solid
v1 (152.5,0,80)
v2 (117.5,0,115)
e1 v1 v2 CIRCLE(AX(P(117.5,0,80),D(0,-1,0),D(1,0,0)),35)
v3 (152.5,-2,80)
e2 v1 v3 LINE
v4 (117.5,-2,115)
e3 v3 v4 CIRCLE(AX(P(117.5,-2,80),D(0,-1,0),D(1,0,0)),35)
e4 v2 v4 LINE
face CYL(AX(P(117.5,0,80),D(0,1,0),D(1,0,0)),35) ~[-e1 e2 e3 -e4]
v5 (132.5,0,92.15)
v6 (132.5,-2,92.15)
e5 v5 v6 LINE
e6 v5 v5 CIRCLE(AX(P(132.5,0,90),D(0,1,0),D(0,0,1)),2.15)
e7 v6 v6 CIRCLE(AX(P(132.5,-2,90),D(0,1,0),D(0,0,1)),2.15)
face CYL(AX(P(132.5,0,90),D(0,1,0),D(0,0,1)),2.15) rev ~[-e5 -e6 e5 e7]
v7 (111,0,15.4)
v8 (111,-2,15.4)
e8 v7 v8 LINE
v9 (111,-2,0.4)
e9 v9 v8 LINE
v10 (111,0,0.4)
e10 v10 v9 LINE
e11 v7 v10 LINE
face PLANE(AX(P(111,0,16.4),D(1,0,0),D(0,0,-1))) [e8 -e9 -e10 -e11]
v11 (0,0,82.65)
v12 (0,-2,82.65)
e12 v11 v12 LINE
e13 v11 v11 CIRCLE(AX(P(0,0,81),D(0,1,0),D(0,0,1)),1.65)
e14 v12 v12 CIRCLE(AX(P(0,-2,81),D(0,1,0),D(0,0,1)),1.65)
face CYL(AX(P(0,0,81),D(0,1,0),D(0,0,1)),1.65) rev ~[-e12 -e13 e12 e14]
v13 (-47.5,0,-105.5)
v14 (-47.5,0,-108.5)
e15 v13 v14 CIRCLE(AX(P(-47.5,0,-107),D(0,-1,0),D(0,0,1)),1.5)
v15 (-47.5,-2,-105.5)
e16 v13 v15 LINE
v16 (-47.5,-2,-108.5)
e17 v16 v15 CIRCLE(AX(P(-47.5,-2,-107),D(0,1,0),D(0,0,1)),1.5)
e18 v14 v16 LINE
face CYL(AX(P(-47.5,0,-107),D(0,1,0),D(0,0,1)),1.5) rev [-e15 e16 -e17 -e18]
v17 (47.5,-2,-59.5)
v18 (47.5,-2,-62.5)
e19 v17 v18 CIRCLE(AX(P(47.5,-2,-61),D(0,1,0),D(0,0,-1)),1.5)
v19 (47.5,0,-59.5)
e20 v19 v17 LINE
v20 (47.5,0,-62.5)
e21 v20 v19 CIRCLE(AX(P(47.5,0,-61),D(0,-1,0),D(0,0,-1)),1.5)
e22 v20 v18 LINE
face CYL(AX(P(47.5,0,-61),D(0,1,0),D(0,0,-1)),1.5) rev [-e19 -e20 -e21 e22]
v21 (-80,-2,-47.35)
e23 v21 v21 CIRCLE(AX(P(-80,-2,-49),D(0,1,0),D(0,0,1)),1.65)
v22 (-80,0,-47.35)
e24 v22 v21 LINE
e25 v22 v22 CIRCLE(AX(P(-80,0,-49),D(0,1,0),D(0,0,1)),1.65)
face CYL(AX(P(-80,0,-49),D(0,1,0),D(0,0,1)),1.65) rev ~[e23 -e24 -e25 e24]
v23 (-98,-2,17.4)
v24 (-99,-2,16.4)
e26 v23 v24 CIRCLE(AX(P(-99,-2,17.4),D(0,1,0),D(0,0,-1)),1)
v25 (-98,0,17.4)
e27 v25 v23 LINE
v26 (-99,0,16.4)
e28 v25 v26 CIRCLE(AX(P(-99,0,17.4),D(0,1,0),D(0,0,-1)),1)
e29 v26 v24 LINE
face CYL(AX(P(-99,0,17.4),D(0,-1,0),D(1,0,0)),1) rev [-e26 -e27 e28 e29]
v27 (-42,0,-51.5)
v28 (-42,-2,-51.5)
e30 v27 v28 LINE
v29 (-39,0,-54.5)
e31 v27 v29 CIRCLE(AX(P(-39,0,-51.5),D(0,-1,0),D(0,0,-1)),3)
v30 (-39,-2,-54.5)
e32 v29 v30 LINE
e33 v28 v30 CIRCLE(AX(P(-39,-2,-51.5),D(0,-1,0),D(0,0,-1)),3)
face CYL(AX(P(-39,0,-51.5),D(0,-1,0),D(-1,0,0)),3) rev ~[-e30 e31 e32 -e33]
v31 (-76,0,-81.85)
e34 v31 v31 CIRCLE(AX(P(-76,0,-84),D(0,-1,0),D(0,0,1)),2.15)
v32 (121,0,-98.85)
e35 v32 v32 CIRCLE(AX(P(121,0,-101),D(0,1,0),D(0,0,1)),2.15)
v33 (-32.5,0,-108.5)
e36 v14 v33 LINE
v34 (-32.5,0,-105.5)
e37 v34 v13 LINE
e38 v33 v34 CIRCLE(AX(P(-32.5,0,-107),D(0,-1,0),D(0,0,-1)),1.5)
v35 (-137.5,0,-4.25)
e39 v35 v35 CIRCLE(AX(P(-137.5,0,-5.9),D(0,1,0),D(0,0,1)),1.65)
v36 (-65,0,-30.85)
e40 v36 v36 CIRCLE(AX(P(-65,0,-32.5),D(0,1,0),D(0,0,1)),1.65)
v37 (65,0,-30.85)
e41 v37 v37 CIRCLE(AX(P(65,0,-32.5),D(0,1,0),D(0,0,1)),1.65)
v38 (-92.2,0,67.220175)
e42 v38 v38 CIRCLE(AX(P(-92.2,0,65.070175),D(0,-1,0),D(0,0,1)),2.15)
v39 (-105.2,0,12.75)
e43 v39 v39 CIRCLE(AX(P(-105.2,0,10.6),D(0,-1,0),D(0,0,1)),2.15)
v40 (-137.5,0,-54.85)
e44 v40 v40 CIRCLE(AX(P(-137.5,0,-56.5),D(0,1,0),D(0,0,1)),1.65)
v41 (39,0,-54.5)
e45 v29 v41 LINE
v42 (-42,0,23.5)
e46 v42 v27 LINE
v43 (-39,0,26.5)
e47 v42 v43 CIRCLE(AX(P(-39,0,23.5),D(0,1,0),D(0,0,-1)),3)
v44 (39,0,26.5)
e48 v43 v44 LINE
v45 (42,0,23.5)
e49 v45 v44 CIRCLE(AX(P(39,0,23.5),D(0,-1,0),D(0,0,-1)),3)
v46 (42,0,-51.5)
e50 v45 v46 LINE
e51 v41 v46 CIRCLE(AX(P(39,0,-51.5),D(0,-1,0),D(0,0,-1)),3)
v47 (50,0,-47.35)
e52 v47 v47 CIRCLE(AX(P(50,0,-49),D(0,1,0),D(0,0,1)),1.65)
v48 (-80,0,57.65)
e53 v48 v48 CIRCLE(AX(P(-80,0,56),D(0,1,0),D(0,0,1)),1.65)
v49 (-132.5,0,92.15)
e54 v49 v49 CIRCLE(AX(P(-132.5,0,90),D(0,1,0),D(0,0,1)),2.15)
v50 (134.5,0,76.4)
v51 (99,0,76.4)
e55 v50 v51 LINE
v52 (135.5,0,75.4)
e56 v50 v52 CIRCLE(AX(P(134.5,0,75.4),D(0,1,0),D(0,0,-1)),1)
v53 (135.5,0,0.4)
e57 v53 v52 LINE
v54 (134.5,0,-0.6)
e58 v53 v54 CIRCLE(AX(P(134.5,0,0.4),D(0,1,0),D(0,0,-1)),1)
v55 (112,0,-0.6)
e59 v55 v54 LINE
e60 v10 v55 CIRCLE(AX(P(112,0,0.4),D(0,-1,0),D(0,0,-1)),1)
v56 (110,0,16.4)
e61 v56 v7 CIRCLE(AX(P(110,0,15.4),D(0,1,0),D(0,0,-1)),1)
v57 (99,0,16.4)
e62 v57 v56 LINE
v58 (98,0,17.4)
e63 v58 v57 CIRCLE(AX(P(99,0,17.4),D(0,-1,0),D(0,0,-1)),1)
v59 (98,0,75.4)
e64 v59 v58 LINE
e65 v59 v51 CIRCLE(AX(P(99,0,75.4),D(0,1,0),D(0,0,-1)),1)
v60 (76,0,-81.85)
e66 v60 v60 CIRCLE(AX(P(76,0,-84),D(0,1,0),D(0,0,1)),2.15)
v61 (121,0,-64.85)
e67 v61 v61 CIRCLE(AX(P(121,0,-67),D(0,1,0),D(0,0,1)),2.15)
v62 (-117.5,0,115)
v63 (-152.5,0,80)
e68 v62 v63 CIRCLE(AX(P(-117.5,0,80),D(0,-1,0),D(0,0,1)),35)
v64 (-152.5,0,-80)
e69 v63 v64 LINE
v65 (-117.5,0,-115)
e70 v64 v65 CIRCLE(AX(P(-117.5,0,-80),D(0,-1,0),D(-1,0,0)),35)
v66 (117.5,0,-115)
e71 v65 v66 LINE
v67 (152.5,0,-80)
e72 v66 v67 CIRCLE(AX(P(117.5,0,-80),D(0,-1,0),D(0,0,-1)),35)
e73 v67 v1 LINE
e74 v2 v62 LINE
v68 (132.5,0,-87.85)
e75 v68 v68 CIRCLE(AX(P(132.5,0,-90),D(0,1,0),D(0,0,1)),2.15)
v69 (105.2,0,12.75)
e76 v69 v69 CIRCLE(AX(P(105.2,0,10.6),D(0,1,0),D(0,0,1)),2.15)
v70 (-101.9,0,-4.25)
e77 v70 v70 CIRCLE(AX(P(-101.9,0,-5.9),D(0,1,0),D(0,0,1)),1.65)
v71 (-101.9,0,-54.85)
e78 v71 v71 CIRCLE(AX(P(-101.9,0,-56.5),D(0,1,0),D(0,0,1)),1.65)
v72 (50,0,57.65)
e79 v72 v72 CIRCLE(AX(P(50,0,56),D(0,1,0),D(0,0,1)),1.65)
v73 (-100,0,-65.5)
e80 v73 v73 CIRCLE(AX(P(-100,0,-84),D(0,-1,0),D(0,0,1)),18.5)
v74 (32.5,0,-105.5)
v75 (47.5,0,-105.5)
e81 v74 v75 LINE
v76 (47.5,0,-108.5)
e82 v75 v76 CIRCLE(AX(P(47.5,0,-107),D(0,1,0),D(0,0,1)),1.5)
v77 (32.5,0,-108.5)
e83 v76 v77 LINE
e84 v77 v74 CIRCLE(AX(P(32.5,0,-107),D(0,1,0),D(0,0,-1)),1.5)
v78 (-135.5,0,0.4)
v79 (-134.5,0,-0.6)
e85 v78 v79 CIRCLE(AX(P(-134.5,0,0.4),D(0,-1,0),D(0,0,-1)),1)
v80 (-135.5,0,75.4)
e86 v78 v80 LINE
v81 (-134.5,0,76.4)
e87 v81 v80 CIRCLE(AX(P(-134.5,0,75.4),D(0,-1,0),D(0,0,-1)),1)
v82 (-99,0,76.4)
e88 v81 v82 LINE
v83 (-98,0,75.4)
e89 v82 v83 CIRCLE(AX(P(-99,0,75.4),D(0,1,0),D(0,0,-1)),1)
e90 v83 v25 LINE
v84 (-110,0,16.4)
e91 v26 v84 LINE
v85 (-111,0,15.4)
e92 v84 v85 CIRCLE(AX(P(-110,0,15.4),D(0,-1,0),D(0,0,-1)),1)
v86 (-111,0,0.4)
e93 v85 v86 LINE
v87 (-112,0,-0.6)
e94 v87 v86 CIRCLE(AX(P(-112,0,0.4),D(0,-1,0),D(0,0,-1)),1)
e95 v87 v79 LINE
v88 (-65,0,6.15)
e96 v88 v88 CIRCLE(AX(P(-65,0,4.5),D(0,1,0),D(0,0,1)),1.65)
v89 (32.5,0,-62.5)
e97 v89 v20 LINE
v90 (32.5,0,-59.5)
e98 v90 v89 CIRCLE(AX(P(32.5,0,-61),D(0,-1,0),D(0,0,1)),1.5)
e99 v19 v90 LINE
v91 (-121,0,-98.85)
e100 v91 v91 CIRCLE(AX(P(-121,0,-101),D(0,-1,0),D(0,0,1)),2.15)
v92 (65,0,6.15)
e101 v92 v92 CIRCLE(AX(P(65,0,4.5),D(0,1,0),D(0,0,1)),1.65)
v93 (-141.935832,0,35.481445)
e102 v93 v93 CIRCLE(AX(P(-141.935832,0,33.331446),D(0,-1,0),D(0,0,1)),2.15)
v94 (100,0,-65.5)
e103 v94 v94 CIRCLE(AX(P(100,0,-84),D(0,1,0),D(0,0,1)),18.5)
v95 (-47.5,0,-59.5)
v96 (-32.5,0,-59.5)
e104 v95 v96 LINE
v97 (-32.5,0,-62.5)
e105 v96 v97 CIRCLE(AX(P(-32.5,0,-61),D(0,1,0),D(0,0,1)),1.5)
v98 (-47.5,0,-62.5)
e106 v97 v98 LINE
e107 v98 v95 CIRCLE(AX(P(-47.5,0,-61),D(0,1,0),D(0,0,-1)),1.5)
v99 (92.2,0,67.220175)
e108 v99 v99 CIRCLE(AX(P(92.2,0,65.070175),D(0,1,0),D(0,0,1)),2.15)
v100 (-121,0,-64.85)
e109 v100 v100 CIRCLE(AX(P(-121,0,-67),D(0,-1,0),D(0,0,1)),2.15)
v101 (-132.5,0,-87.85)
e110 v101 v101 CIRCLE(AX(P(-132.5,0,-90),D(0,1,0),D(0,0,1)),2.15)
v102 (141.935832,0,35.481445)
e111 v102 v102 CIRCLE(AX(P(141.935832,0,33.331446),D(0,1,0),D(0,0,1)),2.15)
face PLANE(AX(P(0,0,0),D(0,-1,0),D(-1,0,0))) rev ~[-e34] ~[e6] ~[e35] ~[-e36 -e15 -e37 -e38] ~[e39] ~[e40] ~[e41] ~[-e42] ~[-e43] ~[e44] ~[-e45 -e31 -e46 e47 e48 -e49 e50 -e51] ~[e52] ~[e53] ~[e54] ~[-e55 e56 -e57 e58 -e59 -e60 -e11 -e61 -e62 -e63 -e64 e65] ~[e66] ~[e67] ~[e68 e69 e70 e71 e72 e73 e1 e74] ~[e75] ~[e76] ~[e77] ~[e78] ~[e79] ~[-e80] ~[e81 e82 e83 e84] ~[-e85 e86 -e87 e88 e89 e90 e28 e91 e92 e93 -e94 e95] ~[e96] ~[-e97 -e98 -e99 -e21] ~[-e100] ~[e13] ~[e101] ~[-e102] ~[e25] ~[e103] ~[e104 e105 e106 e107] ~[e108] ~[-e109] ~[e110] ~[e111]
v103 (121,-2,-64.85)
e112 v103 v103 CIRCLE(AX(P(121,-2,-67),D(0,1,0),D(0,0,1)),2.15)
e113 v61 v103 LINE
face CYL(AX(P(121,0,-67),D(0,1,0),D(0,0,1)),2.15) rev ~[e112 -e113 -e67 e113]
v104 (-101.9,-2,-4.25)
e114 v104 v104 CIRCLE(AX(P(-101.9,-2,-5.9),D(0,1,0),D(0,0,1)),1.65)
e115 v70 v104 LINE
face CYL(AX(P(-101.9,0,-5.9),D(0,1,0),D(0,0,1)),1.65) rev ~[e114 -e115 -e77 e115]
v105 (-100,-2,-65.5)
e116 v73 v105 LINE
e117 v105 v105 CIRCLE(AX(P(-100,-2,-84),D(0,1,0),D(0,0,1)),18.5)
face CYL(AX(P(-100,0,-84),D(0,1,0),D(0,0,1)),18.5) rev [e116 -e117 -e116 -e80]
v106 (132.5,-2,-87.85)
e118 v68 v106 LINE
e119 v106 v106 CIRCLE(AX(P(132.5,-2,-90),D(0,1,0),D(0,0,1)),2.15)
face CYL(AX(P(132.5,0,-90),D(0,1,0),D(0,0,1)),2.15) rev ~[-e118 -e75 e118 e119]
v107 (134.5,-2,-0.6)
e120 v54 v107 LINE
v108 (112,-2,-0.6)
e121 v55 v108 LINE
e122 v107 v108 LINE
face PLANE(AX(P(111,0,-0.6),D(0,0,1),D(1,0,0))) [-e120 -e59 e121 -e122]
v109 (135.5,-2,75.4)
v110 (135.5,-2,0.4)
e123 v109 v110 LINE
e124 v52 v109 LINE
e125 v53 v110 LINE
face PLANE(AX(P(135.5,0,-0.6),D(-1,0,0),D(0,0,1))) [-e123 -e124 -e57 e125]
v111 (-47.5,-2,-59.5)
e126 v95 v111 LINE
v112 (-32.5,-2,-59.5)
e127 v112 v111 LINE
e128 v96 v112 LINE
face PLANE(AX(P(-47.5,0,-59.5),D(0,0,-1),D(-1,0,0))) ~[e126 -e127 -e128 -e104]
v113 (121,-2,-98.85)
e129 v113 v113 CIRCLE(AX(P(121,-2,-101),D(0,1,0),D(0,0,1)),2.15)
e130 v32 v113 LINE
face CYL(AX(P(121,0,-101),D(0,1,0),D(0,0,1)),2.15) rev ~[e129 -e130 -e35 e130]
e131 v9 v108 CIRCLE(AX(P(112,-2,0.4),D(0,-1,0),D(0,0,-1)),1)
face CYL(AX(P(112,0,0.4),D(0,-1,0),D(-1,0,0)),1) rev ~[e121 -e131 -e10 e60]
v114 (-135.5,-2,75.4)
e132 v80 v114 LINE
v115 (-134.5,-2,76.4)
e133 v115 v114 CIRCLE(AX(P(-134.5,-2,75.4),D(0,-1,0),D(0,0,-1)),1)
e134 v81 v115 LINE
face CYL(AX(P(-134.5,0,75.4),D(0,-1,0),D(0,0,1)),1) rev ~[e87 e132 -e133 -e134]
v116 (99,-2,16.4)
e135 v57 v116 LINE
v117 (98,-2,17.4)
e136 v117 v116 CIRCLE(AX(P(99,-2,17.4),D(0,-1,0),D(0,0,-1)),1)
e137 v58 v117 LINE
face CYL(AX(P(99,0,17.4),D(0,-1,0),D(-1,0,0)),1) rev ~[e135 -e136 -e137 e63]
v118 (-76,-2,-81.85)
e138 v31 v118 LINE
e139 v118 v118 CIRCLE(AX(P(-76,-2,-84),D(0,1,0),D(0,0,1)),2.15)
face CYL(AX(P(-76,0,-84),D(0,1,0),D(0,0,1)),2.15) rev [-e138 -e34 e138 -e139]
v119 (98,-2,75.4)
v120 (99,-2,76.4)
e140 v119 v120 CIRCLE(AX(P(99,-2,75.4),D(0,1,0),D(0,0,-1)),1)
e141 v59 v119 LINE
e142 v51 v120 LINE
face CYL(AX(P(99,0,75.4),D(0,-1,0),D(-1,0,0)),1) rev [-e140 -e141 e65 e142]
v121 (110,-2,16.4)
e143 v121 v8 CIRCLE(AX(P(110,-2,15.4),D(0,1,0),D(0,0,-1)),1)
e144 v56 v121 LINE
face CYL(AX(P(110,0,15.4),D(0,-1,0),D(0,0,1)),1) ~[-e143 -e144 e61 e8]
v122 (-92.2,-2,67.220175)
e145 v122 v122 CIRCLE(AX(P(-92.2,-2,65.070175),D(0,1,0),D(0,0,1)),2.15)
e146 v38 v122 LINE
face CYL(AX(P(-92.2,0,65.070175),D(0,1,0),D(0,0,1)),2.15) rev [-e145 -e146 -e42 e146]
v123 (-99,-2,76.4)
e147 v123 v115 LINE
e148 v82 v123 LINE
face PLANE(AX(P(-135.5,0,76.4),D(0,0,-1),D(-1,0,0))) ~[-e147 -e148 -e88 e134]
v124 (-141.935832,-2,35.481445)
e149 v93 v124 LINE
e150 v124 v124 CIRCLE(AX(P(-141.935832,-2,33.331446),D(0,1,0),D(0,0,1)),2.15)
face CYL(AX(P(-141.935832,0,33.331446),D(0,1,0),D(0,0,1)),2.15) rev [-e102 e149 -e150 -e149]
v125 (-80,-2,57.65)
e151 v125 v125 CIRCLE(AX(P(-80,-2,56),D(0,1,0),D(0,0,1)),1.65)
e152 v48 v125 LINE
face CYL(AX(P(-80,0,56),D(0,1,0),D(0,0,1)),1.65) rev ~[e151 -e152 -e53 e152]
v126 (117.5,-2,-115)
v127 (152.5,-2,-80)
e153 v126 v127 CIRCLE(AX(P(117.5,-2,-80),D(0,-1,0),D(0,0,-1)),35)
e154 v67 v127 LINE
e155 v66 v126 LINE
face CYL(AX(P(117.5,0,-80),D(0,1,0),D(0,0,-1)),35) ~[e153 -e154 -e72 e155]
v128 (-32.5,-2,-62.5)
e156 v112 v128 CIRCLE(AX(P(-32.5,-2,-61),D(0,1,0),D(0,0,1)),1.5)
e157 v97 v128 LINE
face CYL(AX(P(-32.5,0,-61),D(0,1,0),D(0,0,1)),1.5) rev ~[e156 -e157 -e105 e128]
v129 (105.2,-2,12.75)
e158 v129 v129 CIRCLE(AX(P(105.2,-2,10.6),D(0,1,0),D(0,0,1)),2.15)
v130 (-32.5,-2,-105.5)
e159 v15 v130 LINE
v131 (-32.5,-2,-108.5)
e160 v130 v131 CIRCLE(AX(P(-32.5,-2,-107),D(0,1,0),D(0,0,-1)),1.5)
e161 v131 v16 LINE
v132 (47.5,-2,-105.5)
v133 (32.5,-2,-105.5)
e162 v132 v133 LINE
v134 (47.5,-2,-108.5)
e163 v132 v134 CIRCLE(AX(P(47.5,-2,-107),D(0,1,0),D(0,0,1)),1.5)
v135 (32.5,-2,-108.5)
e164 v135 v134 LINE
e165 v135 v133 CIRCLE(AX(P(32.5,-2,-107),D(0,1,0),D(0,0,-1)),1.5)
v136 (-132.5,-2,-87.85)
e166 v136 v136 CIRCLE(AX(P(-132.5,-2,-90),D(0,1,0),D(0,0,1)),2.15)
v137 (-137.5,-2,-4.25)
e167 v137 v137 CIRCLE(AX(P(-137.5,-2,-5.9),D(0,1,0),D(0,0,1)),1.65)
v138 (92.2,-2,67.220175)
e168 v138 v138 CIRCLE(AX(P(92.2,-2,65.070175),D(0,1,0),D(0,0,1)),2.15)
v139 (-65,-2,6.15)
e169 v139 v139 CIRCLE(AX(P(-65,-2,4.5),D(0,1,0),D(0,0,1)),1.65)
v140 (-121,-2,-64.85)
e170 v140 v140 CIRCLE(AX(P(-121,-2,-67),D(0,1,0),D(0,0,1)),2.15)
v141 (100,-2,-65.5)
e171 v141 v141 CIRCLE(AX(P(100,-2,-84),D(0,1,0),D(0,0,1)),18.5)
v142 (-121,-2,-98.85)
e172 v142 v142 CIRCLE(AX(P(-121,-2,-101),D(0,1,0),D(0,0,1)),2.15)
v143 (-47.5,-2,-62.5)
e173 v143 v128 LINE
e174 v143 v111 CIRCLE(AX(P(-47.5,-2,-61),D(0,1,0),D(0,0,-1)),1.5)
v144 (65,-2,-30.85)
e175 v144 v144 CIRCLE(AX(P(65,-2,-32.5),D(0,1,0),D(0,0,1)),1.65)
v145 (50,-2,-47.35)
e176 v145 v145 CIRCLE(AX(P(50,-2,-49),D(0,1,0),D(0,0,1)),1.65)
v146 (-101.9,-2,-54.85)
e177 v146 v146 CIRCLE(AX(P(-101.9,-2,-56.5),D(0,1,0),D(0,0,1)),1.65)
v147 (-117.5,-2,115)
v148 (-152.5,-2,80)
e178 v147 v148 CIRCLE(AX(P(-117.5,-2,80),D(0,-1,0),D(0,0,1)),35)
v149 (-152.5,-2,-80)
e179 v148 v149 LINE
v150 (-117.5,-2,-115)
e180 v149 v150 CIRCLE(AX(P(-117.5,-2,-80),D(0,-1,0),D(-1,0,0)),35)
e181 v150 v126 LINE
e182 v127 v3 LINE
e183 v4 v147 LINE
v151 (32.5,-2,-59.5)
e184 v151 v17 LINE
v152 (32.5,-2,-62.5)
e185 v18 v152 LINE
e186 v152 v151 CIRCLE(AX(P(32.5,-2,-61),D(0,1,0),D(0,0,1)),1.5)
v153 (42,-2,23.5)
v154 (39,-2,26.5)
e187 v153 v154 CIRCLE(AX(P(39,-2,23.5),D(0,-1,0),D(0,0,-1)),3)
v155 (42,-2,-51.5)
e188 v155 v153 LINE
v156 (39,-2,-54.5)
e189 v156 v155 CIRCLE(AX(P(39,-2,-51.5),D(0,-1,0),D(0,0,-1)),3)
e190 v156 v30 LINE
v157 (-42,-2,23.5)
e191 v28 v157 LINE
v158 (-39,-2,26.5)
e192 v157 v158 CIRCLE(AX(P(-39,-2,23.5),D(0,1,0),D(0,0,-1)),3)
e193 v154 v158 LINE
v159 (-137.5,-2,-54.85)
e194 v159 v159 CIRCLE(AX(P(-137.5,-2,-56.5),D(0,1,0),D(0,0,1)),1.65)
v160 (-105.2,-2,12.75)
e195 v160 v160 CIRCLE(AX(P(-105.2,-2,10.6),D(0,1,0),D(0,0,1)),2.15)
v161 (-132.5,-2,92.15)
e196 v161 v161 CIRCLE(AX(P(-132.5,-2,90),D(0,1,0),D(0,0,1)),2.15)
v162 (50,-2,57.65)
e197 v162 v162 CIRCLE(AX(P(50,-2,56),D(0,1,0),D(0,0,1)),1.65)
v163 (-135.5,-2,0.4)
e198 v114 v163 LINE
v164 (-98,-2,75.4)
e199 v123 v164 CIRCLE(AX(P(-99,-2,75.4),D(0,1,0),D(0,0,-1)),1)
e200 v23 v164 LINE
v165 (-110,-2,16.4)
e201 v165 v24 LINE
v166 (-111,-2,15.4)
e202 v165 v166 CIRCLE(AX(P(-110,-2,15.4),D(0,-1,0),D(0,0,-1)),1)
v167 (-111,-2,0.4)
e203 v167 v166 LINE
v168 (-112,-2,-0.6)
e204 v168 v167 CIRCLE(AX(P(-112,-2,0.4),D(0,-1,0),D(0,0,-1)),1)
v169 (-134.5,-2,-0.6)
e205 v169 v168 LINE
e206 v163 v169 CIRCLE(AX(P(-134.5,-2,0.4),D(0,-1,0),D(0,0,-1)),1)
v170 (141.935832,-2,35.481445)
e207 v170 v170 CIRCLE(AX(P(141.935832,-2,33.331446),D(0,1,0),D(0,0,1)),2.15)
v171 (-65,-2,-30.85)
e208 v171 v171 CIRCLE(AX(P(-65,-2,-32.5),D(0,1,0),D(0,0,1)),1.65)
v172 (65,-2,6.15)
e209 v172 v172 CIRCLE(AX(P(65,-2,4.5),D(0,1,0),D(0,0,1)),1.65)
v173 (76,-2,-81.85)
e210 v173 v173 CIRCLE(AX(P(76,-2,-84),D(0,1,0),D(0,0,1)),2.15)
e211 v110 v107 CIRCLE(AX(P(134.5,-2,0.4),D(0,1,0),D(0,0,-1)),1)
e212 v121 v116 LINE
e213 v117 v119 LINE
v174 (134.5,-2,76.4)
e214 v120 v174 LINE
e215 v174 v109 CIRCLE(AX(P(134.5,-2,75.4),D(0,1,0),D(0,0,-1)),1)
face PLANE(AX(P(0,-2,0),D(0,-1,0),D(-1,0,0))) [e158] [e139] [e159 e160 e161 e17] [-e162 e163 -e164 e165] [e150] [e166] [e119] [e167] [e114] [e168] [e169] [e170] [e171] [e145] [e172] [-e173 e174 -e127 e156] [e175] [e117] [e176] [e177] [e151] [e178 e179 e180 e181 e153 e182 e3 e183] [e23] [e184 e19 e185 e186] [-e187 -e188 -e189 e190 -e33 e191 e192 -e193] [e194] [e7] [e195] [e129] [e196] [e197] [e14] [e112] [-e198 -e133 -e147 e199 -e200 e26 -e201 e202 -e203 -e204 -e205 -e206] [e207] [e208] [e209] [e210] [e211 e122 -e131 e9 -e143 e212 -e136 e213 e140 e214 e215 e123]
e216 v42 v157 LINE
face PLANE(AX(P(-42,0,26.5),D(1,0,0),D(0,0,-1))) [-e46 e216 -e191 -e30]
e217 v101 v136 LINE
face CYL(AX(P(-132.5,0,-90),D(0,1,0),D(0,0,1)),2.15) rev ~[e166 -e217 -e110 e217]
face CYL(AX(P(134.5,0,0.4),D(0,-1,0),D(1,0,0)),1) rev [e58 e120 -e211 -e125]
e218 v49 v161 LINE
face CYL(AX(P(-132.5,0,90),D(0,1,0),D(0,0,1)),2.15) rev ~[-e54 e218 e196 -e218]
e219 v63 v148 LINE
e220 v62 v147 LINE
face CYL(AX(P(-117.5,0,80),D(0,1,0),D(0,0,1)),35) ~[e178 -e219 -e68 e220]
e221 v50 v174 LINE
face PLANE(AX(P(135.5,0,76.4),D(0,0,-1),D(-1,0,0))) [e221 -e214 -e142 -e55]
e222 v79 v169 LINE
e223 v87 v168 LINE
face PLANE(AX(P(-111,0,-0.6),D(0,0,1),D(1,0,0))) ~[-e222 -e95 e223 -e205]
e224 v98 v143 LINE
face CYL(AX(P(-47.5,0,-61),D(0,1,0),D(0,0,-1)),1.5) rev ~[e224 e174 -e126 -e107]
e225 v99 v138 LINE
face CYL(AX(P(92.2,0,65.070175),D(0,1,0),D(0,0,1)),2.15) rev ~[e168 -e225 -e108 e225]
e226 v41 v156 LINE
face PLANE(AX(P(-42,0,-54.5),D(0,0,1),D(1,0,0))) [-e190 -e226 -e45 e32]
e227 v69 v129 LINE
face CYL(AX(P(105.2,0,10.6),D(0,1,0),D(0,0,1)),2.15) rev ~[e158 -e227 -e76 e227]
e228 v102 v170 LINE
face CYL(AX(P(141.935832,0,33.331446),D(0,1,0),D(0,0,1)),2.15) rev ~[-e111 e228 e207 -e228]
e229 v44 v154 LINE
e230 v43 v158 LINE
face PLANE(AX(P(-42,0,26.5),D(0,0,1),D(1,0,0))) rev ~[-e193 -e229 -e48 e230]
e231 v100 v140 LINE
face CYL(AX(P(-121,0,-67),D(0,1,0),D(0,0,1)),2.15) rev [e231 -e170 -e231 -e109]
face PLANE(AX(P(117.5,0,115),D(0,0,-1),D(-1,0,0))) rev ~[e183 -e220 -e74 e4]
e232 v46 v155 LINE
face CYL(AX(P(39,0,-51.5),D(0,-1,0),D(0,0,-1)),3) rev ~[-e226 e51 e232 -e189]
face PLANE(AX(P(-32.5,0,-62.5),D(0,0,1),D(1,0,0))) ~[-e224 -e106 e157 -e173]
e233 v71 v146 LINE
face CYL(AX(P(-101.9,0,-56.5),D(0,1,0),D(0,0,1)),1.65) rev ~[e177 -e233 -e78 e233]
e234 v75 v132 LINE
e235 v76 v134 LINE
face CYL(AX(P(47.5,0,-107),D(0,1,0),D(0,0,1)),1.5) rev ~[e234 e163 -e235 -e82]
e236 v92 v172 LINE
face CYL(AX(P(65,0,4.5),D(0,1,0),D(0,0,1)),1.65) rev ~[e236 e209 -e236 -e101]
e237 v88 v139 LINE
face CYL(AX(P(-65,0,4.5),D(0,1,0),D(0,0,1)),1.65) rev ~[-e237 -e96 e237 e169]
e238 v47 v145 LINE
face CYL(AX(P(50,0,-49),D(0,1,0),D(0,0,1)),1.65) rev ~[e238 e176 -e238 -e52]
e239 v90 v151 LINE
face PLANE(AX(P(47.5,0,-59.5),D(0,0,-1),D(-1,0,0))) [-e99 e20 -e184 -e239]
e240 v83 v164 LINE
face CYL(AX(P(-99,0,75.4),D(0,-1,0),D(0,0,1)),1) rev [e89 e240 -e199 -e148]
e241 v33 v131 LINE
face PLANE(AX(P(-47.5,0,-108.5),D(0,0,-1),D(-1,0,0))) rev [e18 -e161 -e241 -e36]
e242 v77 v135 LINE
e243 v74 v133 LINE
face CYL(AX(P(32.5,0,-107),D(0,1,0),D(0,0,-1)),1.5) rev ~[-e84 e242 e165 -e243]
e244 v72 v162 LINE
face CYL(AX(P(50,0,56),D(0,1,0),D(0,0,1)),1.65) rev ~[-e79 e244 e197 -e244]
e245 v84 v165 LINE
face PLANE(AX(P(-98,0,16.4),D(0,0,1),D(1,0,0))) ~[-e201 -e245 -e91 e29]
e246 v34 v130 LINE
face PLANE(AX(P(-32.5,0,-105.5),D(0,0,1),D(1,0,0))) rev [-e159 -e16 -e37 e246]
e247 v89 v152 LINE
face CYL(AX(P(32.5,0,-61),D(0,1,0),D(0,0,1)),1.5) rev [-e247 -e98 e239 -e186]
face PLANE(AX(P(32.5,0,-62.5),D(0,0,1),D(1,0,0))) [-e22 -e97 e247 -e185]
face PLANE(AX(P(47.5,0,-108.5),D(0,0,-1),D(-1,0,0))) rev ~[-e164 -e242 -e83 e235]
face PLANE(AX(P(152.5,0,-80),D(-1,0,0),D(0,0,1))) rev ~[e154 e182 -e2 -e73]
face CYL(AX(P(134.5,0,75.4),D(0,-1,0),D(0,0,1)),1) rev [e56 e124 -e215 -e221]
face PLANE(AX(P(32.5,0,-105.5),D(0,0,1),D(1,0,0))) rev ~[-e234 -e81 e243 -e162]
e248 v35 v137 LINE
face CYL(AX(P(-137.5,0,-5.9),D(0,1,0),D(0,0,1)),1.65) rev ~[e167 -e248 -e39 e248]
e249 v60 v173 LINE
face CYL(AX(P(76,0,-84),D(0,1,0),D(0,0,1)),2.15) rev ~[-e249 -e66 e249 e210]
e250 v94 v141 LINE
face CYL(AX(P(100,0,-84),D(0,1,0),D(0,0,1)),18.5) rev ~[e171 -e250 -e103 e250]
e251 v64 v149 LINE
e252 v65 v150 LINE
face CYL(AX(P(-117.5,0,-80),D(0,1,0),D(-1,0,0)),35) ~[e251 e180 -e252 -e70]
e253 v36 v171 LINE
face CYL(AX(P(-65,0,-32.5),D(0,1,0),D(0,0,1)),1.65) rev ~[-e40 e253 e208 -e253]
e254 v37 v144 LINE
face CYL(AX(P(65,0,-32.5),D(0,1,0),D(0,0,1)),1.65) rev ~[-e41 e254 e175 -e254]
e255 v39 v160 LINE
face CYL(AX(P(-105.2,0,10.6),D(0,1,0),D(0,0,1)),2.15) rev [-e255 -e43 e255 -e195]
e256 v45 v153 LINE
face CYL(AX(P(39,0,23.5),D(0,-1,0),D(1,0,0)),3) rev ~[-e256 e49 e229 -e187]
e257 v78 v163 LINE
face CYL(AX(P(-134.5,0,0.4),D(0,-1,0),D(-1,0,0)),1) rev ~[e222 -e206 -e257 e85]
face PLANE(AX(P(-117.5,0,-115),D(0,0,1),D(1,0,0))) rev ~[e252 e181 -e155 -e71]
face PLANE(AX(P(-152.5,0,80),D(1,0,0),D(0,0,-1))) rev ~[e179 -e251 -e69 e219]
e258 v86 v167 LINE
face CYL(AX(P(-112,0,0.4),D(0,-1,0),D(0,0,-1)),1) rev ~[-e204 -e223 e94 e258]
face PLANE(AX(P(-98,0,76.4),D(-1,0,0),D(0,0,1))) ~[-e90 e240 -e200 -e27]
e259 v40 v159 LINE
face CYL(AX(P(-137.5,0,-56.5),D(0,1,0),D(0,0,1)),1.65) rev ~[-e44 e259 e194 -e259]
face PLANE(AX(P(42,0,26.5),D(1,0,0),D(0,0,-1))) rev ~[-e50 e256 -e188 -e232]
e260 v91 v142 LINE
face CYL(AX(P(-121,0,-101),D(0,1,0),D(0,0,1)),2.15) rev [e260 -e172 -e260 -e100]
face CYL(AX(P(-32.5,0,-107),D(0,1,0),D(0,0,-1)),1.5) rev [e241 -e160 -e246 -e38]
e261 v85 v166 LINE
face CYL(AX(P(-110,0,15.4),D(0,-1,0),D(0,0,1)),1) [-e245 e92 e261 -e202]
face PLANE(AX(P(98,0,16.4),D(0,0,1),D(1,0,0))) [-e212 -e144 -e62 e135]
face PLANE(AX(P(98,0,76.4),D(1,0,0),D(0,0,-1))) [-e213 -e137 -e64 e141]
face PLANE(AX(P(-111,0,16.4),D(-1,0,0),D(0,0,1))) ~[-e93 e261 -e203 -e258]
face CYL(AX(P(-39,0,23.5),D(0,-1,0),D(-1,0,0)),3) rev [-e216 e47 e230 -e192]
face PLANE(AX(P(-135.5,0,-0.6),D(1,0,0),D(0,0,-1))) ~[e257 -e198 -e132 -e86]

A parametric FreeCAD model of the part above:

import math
import FreeCAD as App
import Part
import Sketcher

V = App.Vector
Q = App.Units.Quantity


def edges_at(feature, points):
    """Names of the edges that pass closest to the given points."""
    edges = feature.Shape.Edges
    near = lambda p: min(range(len(edges)), key=lambda i: edges[i].distToShape(Part.Vertex(*p))[0])
    return sorted({f"Edge{near(p) + 1}" for p in points})

doc = App.newDocument("Part")
params = doc.addObject("Spreadsheet::Sheet", "Params")
for row, (alias, value) in enumerate([
    ("sketch1_radius", "35 mm"),
    ("sketch1_width", "235 mm"),
    ("sketch1_height", "160 mm"),
    ("pad1_length", "2 mm"),
    ("sketch2_width", "13 mm"),
    ("sketch2_height", "60 mm"),
    ("sketch2_height2", "77 mm"),
    ("sketch2_width2", "37.5 mm"),
    ("sketch3_diameter", "4.3 mm"),
    ("sketch4_diameter", "4.3 mm"),
    ("fillet_radius", "1 mm"),
    ("sketch5_diameter", "37 mm"),
    ("sketch5_diameter2", "4.3 mm"),
    ("pocket4_length", "10 mm"),
    ("sketch6_diameter", "3.3 mm"),
    ("sketch6_width", "84 mm"),
    ("sketch6_height", "81 mm"),
    ("fillet2_radius", "3 mm"),
    ("sketch7_diameter", "3.3 mm"),
    ("sketch8_diameter", "3.3 mm"),
    ("sketch9_radius", "1.5 mm"),
    ("sketch9_width", "15 mm"),
    ("fillet3_radius", "1 mm"),
], start=1):
    params.set(f"A{row}", alias)
    params.set(f"B{row}", "=" + value)
    params.setAlias(f"B{row}", alias)

body = doc.addObject("PartDesign::Body", "Body")

# Sketch on XZ plane
sketch1 = body.newObject("Sketcher::SketchObject", "Sketch")
sketch1.AttachmentSupport = (doc.getObject("XZ_Plane"), [""])
sketch1.MapMode = "FlatFace"
sketch1.addGeometry(Part.LineSegment(V(-118, 115, 0), V(118, 115, 0)), False)
sketch1.addGeometry(Part.ArcOfCircle(Part.Circle(V(118, 80, 0), V(0, 0, 1), 35), math.radians(0), math.radians(90)), False)
sketch1.addGeometry(Part.LineSegment(V(152, 80, 0), V(152, -80, 0)), False)
sketch1.addGeometry(Part.ArcOfCircle(Part.Circle(V(118, -80, 0), V(0, 0, 1), 35), math.radians(-90), math.radians(0)), False)
sketch1.addGeometry(Part.LineSegment(V(118, -115, 0), V(-118, -115, 0)), False)
sketch1.addGeometry(Part.ArcOfCircle(Part.Circle(V(-118, -80, 0), V(0, 0, 1), 35), math.radians(180), math.radians(270)), False)
sketch1.addGeometry(Part.LineSegment(V(-152, -80, 0), V(-152, 80, 0)), False)
sketch1.addGeometry(Part.ArcOfCircle(Part.Circle(V(-118, 80, 0), V(0, 0, 1), 35), math.radians(90), math.radians(180)), False)
sketch1.addConstraint(Sketcher.Constraint("Tangent", 0, 2, 1, 2))
sketch1.addConstraint(Sketcher.Constraint("Tangent", 1, 1, 2, 1))
sketch1.addConstraint(Sketcher.Constraint("Tangent", 2, 2, 3, 2))
sketch1.addConstraint(Sketcher.Constraint("Tangent", 3, 1, 4, 1))
sketch1.addConstraint(Sketcher.Constraint("Tangent", 4, 2, 5, 2))
sketch1.addConstraint(Sketcher.Constraint("Tangent", 5, 1, 6, 1))
sketch1.addConstraint(Sketcher.Constraint("Tangent", 6, 2, 7, 2))
sketch1.addConstraint(Sketcher.Constraint("Tangent", 7, 1, 0, 1))
sketch1.addConstraint(Sketcher.Constraint("Horizontal", 0))
sketch1.addConstraint(Sketcher.Constraint("Vertical", 2))
sketch1.addConstraint(Sketcher.Constraint("Horizontal", 4))
sketch1.addConstraint(Sketcher.Constraint("Vertical", 6))
sketch1.addConstraint(Sketcher.Constraint("Equal", 1, 3))
sketch1.addConstraint(Sketcher.Constraint("Equal", 3, 5))
sketch1.addConstraint(Sketcher.Constraint("Equal", 5, 7))
sketch1.addConstraint(Sketcher.Constraint("Symmetric", 1, 3, 5, 3, -1, 1))
sketch1.addConstraint(Sketcher.Constraint("Radius", 1, Q("35 mm")))
sketch1.addConstraint(Sketcher.Constraint("DistanceX", 0, 1, 0, 2, Q("235 mm")))
sketch1.addConstraint(Sketcher.Constraint("DistanceY", 2, 2, 2, 1, Q("160 mm")))
sketch1.setExpression("Constraints[16]", "Params.sketch1_radius")
sketch1.setExpression("Constraints[17]", "Params.sketch1_width")
sketch1.setExpression("Constraints[18]", "Params.sketch1_height")
pad1 = body.newObject("PartDesign::Pad", "Pad")
pad1.Profile = sketch1
pad1.setExpression("Length", "Params.pad1_length")

# Sketch on XZ plane
sketch2 = body.newObject("Sketcher::SketchObject", "Sketch001")
sketch2.AttachmentSupport = (doc.getObject("XZ_Plane"), [""])
sketch2.MapMode = "FlatFace"
sketch2.addGeometry(Part.LineSegment(V(98, 16, 0), V(98, 76, 0)), False)
sketch2.addGeometry(Part.LineSegment(V(98, 76, 0), V(136, 76, 0)), False)
sketch2.addGeometry(Part.LineSegment(V(136, 76, 0), V(136, -1, 0)), False)
sketch2.addGeometry(Part.LineSegment(V(136, -1, 0), V(111, -1, 0)), False)
sketch2.addGeometry(Part.LineSegment(V(111, -1, 0), V(111, 16, 0)), False)
sketch2.addGeometry(Part.LineSegment(V(111, 16, 0), V(98, 16, 0)), False)
sketch2.addConstraint(Sketcher.Constraint("Coincident", 0, 2, 1, 1))
sketch2.addConstraint(Sketcher.Constraint("Coincident", 1, 2, 2, 1))
sketch2.addConstraint(Sketcher.Constraint("Coincident", 2, 2, 3, 1))
sketch2.addConstraint(Sketcher.Constraint("Coincident", 3, 2, 4, 1))
sketch2.addConstraint(Sketcher.Constraint("Coincident", 4, 2, 5, 1))
sketch2.addConstraint(Sketcher.Constraint("Coincident", 5, 2, 0, 1))
sketch2.addConstraint(Sketcher.Constraint("Vertical", 0))
sketch2.addConstraint(Sketcher.Constraint("Horizontal", 1))
sketch2.addConstraint(Sketcher.Constraint("Vertical", 2))
sketch2.addConstraint(Sketcher.Constraint("Horizontal", 3))
sketch2.addConstraint(Sketcher.Constraint("Vertical", 4))
sketch2.addConstraint(Sketcher.Constraint("Horizontal", 5))
sketch2.addConstraint(Sketcher.Constraint("DistanceX", 5, 2, 5, 1, Q("13 mm")))
sketch2.addConstraint(Sketcher.Constraint("DistanceY", 0, 1, 0, 2, Q("60 mm")))
sketch2.addConstraint(Sketcher.Constraint("DistanceY", 2, 2, 2, 1, Q("77 mm")))
sketch2.addConstraint(Sketcher.Constraint("DistanceX", 1, 1, 1, 2, Q("37.5 mm")))
sketch2.addConstraint(Sketcher.Constraint("DistanceX", -1, 1, 0, 2, Q("98 mm")))
sketch2.addConstraint(Sketcher.Constraint("DistanceY", -1, 1, 0, 2, Q("76.4 mm")))
sketch2.setExpression("Constraints[12]", "Params.sketch2_width")
sketch2.setExpression("Constraints[13]", "Params.sketch2_height")
sketch2.setExpression("Constraints[14]", "Params.sketch2_height2")
sketch2.setExpression("Constraints[15]", "Params.sketch2_width2")
pocket1 = body.newObject("PartDesign::Pocket", "Pocket")
pocket1.Profile = sketch2
pocket1.Type = "ThroughAll"
pocket1.Reversed = True

# Sketch on XZ plane
sketch3 = body.newObject("Sketcher::SketchObject", "Sketch002")
sketch3.AttachmentSupport = (doc.getObject("XZ_Plane"), [""])
sketch3.MapMode = "FlatFace"
sketch3.addGeometry(Part.Circle(V(92.2, 65.1, 0), V(0, 0, 1), 2.1), False)
sketch3.addGeometry(Part.Circle(V(105.2, 10.6, 0), V(0, 0, 1), 2.1), False)
sketch3.addGeometry(Part.Circle(V(141.9, 33.3, 0), V(0, 0, 1), 2.1), False)
sketch3.addConstraint(Sketcher.Constraint("Equal", 0, 1))
sketch3.addConstraint(Sketcher.Constraint("Equal", 1, 2))
sketch3.addConstraint(Sketcher.Constraint("Diameter", 0, Q("4.3 mm")))
sketch3.addConstraint(Sketcher.Constraint("DistanceX", 0, 3, 1, 3, Q("13 mm")))
sketch3.addConstraint(Sketcher.Constraint("DistanceX", -1, 1, 0, 3, Q("92.2 mm")))
sketch3.addConstraint(Sketcher.Constraint("DistanceY", -1, 1, 1, 3, Q("10.6 mm")))
sketch3.addConstraint(Sketcher.Constraint("DistanceY", 2, 3, 0, 3, Q("31.73873 mm")))
sketch3.addConstraint(Sketcher.Constraint("DistanceY", -1, 1, 0, 3, Q("65.070175 mm")))
sketch3.addConstraint(Sketcher.Constraint("DistanceX", -1, 1, 2, 3, Q("141.935832 mm")))
sketch3.setExpression("Constraints[2]", "Params.sketch3_diameter")
pocket2 = body.newObject("PartDesign::Pocket", "Pocket001")
pocket2.Profile = sketch3
pocket2.Type = "ThroughAll"
pocket2.Reversed = True

# Sketch on XZ plane
sketch4 = body.newObject("Sketcher::SketchObject", "Sketch003")
sketch4.AttachmentSupport = (doc.getObject("XZ_Plane"), [""])
sketch4.MapMode = "FlatFace"
sketch4.addGeometry(Part.Circle(V(-132.5, -90, 0), V(0, 0, 1), 2.1), False)
sketch4.addGeometry(Part.Circle(V(132.5, -90, 0), V(0, 0, 1), 2.1), False)
sketch4.addGeometry(Part.Circle(V(-132.5, 90, 0), V(0, 0, 1), 2.1), False)
sketch4.addGeometry(Part.Circle(V(132.5, 90, 0), V(0, 0, 1), 2.1), False)
sketch4.addConstraint(Sketcher.Constraint("Equal", 0, 1))
sketch4.addConstraint(Sketcher.Constraint("Equal", 1, 2))
sketch4.addConstraint(Sketcher.Constraint("Equal", 2, 3))
sketch4.addConstraint(Sketcher.Constraint("Symmetric", 1, 3, 2, 3, -1, 1))
sketch4.addConstraint(Sketcher.Constraint("Symmetric", 0, 3, 3, 3, -1, 1))
sketch4.addConstraint(Sketcher.Constraint("Symmetric", 0, 3, 1, 3, -2))
sketch4.addConstraint(Sketcher.Constraint("Diameter", 0, Q("4.3 mm")))
sketch4.addConstraint(Sketcher.Constraint("DistanceY", 0, 3, -1, 1, Q("90 mm")))
sketch4.addConstraint(Sketcher.Constraint("DistanceX", 0, 3, 1, 3, Q("265 mm")))
sketch4.setExpression("Constraints[6]", "Params.sketch4_diameter")
pocket3 = body.newObject("PartDesign::Pocket", "Pocket002")
pocket3.Profile = sketch4
pocket3.Type = "ThroughAll"
pocket3.Reversed = True
doc.recompute()

fillet = body.newObject("PartDesign::Fillet", "Fillet")
fillet.Base = (pocket3, edges_at(pocket3, [
    (135.5, -1, 76.4),
    (98, -1, 76.4),
    (98, -1, 16.4),
    (111, -1, 16.4),
    (111, -1, -0.6),
    (135.5, -1, -0.6),
]))
fillet.setExpression("Radius", "Params.fillet_radius")

# Sketch on XZ plane
sketch5 = body.newObject("Sketcher::SketchObject", "Sketch004")
sketch5.AttachmentSupport = (doc.getObject("XZ_Plane"), [""])
sketch5.MapMode = "FlatFace"
sketch5.addGeometry(Part.Circle(V(100, -84, 0), V(0, 0, 1), 18.5), False)
sketch5.addGeometry(Part.Circle(V(121, -101, 0), V(0, 0, 1), 2.1), False)
sketch5.addGeometry(Part.Circle(V(121, -67, 0), V(0, 0, 1), 2.1), False)
sketch5.addGeometry(Part.Circle(V(76, -84, 0), V(0, 0, 1), 2.1), False)
sketch5.addConstraint(Sketcher.Constraint("Equal", 1, 2))
sketch5.addConstraint(Sketcher.Constraint("Equal", 2, 3))
sketch5.addConstraint(Sketcher.Constraint("Horizontal", 0, 3, 3, 3))
sketch5.addConstraint(Sketcher.Constraint("Vertical", 1, 3, 2, 3))
sketch5.addConstraint(Sketcher.Constraint("Diameter", 0, Q("37 mm")))
sketch5.addConstraint(Sketcher.Constraint("Diameter", 1, Q("4.3 mm")))
sketch5.addConstraint(Sketcher.Constraint("DistanceX", -1, 1, 0, 3, Q("100 mm")))
sketch5.addConstraint(Sketcher.Constraint("DistanceY", 0, 3, -1, 1, Q("84 mm")))
sketch5.addConstraint(Sketcher.Constraint("DistanceX", -1, 1, 1, 3, Q("121 mm")))
sketch5.addConstraint(Sketcher.Constraint("DistanceY", 1, 3, -1, 1, Q("101 mm")))
sketch5.addConstraint(Sketcher.Constraint("DistanceY", 2, 3, -1, 1, Q("67 mm")))
sketch5.addConstraint(Sketcher.Constraint("DistanceX", -1, 1, 3, 3, Q("76 mm")))
sketch5.setExpression("Constraints[4]", "Params.sketch5_diameter")
sketch5.setExpression("Constraints[5]", "Params.sketch5_diameter2")
pocket4 = body.newObject("PartDesign::Pocket", "Pocket003")
pocket4.Profile = sketch5
pocket4.setExpression("Length", "Params.pocket4_length")
pocket4.Reversed = True

# Sketch on XZ plane
sketch6 = body.newObject("Sketcher::SketchObject", "Sketch005")
sketch6.AttachmentSupport = (doc.getObject("XZ_Plane"), [""])
sketch6.MapMode = "FlatFace"
sketch6.addGeometry(Part.Circle(V(-65, -32.5, 0), V(0, 0, 1), 1.6), False)
sketch6.addGeometry(Part.Circle(V(-65, 4.5, 0), V(0, 0, 1), 1.6), False)
sketch6.addGeometry(Part.Circle(V(65, 4.5, 0), V(0, 0, 1), 1.6), False)
sketch6.addGeometry(Part.Circle(V(65, -32.5, 0), V(0, 0, 1), 1.6), False)
sketch6.addGeometry(Part.LineSegment(V(-42, -54.5, 0), V(-42, 26.5, 0)), False)
sketch6.addGeometry(Part.LineSegment(V(-42, 26.5, 0), V(42, 26.5, 0)), False)
sketch6.addGeometry(Part.LineSegment(V(42, 26.5, 0), V(42, -54.5, 0)), False)
sketch6.addGeometry(Part.LineSegment(V(42, -54.5, 0), V(-42, -54.5, 0)), False)
sketch6.addConstraint(Sketcher.Constraint("Coincident", 4, 2, 5, 1))
sketch6.addConstraint(Sketcher.Constraint("Coincident", 5, 2, 6, 1))
sketch6.addConstraint(Sketcher.Constraint("Coincident", 6, 2, 7, 1))
sketch6.addConstraint(Sketcher.Constraint("Coincident", 7, 2, 4, 1))
sketch6.addConstraint(Sketcher.Constraint("Vertical", 4))
sketch6.addConstraint(Sketcher.Constraint("Horizontal", 5))
sketch6.addConstraint(Sketcher.Constraint("Vertical", 6))
sketch6.addConstraint(Sketcher.Constraint("Horizontal", 7))
sketch6.addConstraint(Sketcher.Constraint("Equal", 0, 1))
sketch6.addConstraint(Sketcher.Constraint("Equal", 1, 2))
sketch6.addConstraint(Sketcher.Constraint("Equal", 2, 3))
sketch6.addConstraint(Sketcher.Constraint("Symmetric", 1, 3, 2, 3, -2))
sketch6.addConstraint(Sketcher.Constraint("Symmetric", 0, 3, 3, 3, -2))
sketch6.addConstraint(Sketcher.Constraint("Vertical", 0, 3, 1, 3))
sketch6.addConstraint(Sketcher.Constraint("Diameter", 0, Q("3.3 mm")))
sketch6.addConstraint(Sketcher.Constraint("DistanceX", 5, 1, 5, 2, Q("84 mm")))
sketch6.addConstraint(Sketcher.Constraint("DistanceY", 4, 1, 4, 2, Q("81 mm")))
sketch6.addConstraint(Sketcher.Constraint("DistanceX", 0, 3, -1, 1, Q("65 mm")))
sketch6.addConstraint(Sketcher.Constraint("DistanceX", 4, 2, -1, 1, Q("42 mm")))
sketch6.addConstraint(Sketcher.Constraint("DistanceY", 0, 3, 1, 3, Q("37 mm")))
sketch6.addConstraint(Sketcher.Constraint("DistanceY", 1, 3, 4, 2, Q("22 mm")))
sketch6.addConstraint(Sketcher.Constraint("DistanceY", 0, 3, -1, 1, Q("32.5 mm")))
sketch6.setExpression("Constraints[14]", "Params.sketch6_diameter")
sketch6.setExpression("Constraints[15]", "Params.sketch6_width")
sketch6.setExpression("Constraints[16]", "Params.sketch6_height")
pocket5 = body.newObject("PartDesign::Pocket", "Pocket004")
pocket5.Profile = sketch6
pocket5.Type = "ThroughAll"
pocket5.Reversed = True
doc.recompute()

fillet2 = body.newObject("PartDesign::Fillet", "Fillet001")
fillet2.Base = (pocket5, edges_at(pocket5, [
    (42, -1, -54.5),
    (42, -1, 26.5),
    (-42, -1, 26.5),
    (-42, -1, -54.5),
]))
fillet2.setExpression("Radius", "Params.fillet2_radius")

# Sketch on XZ plane
sketch7 = body.newObject("Sketcher::SketchObject", "Sketch006")
sketch7.AttachmentSupport = (doc.getObject("XZ_Plane"), [""])
sketch7.MapMode = "FlatFace"
sketch7.addGeometry(Part.Circle(V(-137.5, -56.5, 0), V(0, 0, 1), 1.6), False)
sketch7.addGeometry(Part.Circle(V(-101.9, -56.5, 0), V(0, 0, 1), 1.6), False)
sketch7.addGeometry(Part.Circle(V(-137.5, -5.9, 0), V(0, 0, 1), 1.6), False)
sketch7.addGeometry(Part.Circle(V(-101.9, -5.9, 0), V(0, 0, 1), 1.6), False)
sketch7.addConstraint(Sketcher.Constraint("Equal", 0, 1))
sketch7.addConstraint(Sketcher.Constraint("Equal", 1, 2))
sketch7.addConstraint(Sketcher.Constraint("Equal", 2, 3))
sketch7.addConstraint(Sketcher.Constraint("Horizontal", 0, 3, 1, 3))
sketch7.addConstraint(Sketcher.Constraint("Horizontal", 2, 3, 3, 3))
sketch7.addConstraint(Sketcher.Constraint("Vertical", 0, 3, 2, 3))
sketch7.addConstraint(Sketcher.Constraint("Vertical", 1, 3, 3, 3))
sketch7.addConstraint(Sketcher.Constraint("Diameter", 0, Q("3.3 mm")))
sketch7.addConstraint(Sketcher.Constraint("DistanceX", 0, 3, -1, 1, Q("137.5 mm")))
sketch7.addConstraint(Sketcher.Constraint("DistanceY", 0, 3, -1, 1, Q("56.5 mm")))
sketch7.addConstraint(Sketcher.Constraint("DistanceX", 1, 3, -1, 1, Q("101.9 mm")))
sketch7.addConstraint(Sketcher.Constraint("DistanceY", 2, 3, -1, 1, Q("5.9 mm")))
sketch7.setExpression("Constraints[7]", "Params.sketch7_diameter")
pocket6 = body.newObject("PartDesign::Pocket", "Pocket005")
pocket6.Profile = sketch7
pocket6.Type = "ThroughAll"
pocket6.Reversed = True

# Sketch on XZ plane
sketch8 = body.newObject("Sketcher::SketchObject", "Sketch007")
sketch8.AttachmentSupport = (doc.getObject("XZ_Plane"), [""])
sketch8.MapMode = "FlatFace"
sketch8.addGeometry(Part.Circle(V(-80, -49, 0), V(0, 0, 1), 1.6), False)
sketch8.addGeometry(Part.Circle(V(-80, 56, 0), V(0, 0, 1), 1.6), False)
sketch8.addGeometry(Part.Circle(V(0, 81, 0), V(0, 0, 1), 1.6), False)
sketch8.addGeometry(Part.Circle(V(50, 56, 0), V(0, 0, 1), 1.6), False)
sketch8.addGeometry(Part.Circle(V(50, -49, 0), V(0, 0, 1), 1.6), False)
sketch8.addConstraint(Sketcher.Constraint("Equal", 0, 1))
sketch8.addConstraint(Sketcher.Constraint("Equal", 1, 2))
sketch8.addConstraint(Sketcher.Constraint("Equal", 2, 3))
sketch8.addConstraint(Sketcher.Constraint("Equal", 3, 4))
sketch8.addConstraint(Sketcher.Constraint("PointOnObject", 2, 3, -2))
sketch8.addConstraint(Sketcher.Constraint("Horizontal", 1, 3, 3, 3))
sketch8.addConstraint(Sketcher.Constraint("Horizontal", 0, 3, 4, 3))
sketch8.addConstraint(Sketcher.Constraint("Vertical", 0, 3, 1, 3))
sketch8.addConstraint(Sketcher.Constraint("Vertical", 3, 3, 4, 3))
sketch8.addConstraint(Sketcher.Constraint("Diameter", 0, Q("3.3 mm")))
sketch8.addConstraint(Sketcher.Constraint("DistanceX", 0, 3, -1, 1, Q("80 mm")))
sketch8.addConstraint(Sketcher.Constraint("DistanceY", 0, 3, -1, 1, Q("49 mm")))
sketch8.addConstraint(Sketcher.Constraint("DistanceY", -1, 1, 1, 3, Q("56 mm")))
sketch8.addConstraint(Sketcher.Constraint("DistanceY", -1, 1, 2, 3, Q("81 mm")))
sketch8.addConstraint(Sketcher.Constraint("DistanceX", -1, 1, 3, 3, Q("50 mm")))
sketch8.setExpression("Constraints[9]", "Params.sketch8_diameter")
pocket7 = body.newObject("PartDesign::Pocket", "Pocket006")
pocket7.Profile = sketch8
pocket7.Type = "ThroughAll"
pocket7.Reversed = True

# Sketch on XZ plane
sketch9 = body.newObject("Sketcher::SketchObject", "Sketch008")
sketch9.AttachmentSupport = (doc.getObject("XZ_Plane"), [""])
sketch9.MapMode = "FlatFace"
sketch9.addGeometry(Part.LineSegment(V(32.5, -105.5, 0), V(47.5, -105.5, 0)), False)
sketch9.addGeometry(Part.ArcOfCircle(Part.Circle(V(47.5, -107, 0), V(0, 0, 1), 1.5), math.radians(-90), math.radians(90)), False)
sketch9.addGeometry(Part.LineSegment(V(47.5, -108.5, 0), V(32.5, -108.5, 0)), False)
sketch9.addGeometry(Part.ArcOfCircle(Part.Circle(V(32.5, -107, 0), V(0, 0, 1), 1.5), math.radians(90), math.radians(270)), False)
sketch9.addGeometry(Part.LineSegment(V(47.5, -62.5, 0), V(32.5, -62.5, 0)), False)
sketch9.addGeometry(Part.ArcOfCircle(Part.Circle(V(32.5, -61, 0), V(0, 0, 1), 1.5), math.radians(90), math.radians(270)), False)
sketch9.addGeometry(Part.LineSegment(V(32.5, -59.5, 0), V(47.5, -59.5, 0)), False)
sketch9.addGeometry(Part.ArcOfCircle(Part.Circle(V(47.5, -61, 0), V(0, 0, 1), 1.5), math.radians(-90), math.radians(90)), False)
sketch9.addConstraint(Sketcher.Constraint("Tangent", 0, 2, 1, 2))
sketch9.addConstraint(Sketcher.Constraint("Tangent", 1, 1, 2, 1))
sketch9.addConstraint(Sketcher.Constraint("Tangent", 2, 2, 3, 2))
sketch9.addConstraint(Sketcher.Constraint("Tangent", 3, 1, 0, 1))
sketch9.addConstraint(Sketcher.Constraint("Tangent", 4, 2, 5, 2))
sketch9.addConstraint(Sketcher.Constraint("Tangent", 5, 1, 6, 1))
sketch9.addConstraint(Sketcher.Constraint("Tangent", 6, 2, 7, 2))
sketch9.addConstraint(Sketcher.Constraint("Tangent", 7, 1, 4, 1))
sketch9.addConstraint(Sketcher.Constraint("Horizontal", 0))
sketch9.addConstraint(Sketcher.Constraint("Horizontal", 2))
sketch9.addConstraint(Sketcher.Constraint("Horizontal", 4))
sketch9.addConstraint(Sketcher.Constraint("Horizontal", 6))
sketch9.addConstraint(Sketcher.Constraint("Equal", 3, 5))
sketch9.addConstraint(Sketcher.Constraint("Vertical", 3, 3, 5, 3))
sketch9.addConstraint(Sketcher.Constraint("Vertical", 1, 3, 7, 3))
sketch9.addConstraint(Sketcher.Constraint("Radius", 1, Q("1.5 mm")))
sketch9.addConstraint(Sketcher.Constraint("DistanceX", 0, 1, 0, 2, Q("15 mm")))
sketch9.addConstraint(Sketcher.Constraint("DistanceY", 1, 3, -1, 1, Q("107 mm")))
sketch9.addConstraint(Sketcher.Constraint("DistanceY", 5, 3, -1, 1, Q("61 mm")))
sketch9.addConstraint(Sketcher.Constraint("DistanceX", -1, 1, 1, 3, Q("47.5 mm")))
sketch9.setExpression("Constraints[15]", "Params.sketch9_radius")
sketch9.setExpression("Constraints[16]", "Params.sketch9_width")
pocket8 = body.newObject("PartDesign::Pocket", "Pocket007")
pocket8.Profile = sketch9
pocket8.Type = "ThroughAll"
pocket8.Reversed = True
doc.recompute()

mirrored = body.newObject("PartDesign::Mirrored", "Mirrored")
mirrored.Originals = [pocket1, pocket2, pocket4, pocket8]
mirrored.MirrorPlane = (doc.getObject("YZ_Plane"), [""])
body.Tip = mirrored
doc.recompute()

fillet3 = body.newObject("PartDesign::Fillet", "Fillet002")
fillet3.Base = (mirrored, edges_at(mirrored, [
    (-135.5, -1, 76.4),
    (-98, -1, 76.4),
    (-98, -1, 16.4),
    (-111, -1, 16.4),
    (-111, -1, -0.6),
    (-135.5, -1, -0.6),
]))
fillet3.setExpression("Radius", "Params.fillet3_radius")

doc.recompute()
